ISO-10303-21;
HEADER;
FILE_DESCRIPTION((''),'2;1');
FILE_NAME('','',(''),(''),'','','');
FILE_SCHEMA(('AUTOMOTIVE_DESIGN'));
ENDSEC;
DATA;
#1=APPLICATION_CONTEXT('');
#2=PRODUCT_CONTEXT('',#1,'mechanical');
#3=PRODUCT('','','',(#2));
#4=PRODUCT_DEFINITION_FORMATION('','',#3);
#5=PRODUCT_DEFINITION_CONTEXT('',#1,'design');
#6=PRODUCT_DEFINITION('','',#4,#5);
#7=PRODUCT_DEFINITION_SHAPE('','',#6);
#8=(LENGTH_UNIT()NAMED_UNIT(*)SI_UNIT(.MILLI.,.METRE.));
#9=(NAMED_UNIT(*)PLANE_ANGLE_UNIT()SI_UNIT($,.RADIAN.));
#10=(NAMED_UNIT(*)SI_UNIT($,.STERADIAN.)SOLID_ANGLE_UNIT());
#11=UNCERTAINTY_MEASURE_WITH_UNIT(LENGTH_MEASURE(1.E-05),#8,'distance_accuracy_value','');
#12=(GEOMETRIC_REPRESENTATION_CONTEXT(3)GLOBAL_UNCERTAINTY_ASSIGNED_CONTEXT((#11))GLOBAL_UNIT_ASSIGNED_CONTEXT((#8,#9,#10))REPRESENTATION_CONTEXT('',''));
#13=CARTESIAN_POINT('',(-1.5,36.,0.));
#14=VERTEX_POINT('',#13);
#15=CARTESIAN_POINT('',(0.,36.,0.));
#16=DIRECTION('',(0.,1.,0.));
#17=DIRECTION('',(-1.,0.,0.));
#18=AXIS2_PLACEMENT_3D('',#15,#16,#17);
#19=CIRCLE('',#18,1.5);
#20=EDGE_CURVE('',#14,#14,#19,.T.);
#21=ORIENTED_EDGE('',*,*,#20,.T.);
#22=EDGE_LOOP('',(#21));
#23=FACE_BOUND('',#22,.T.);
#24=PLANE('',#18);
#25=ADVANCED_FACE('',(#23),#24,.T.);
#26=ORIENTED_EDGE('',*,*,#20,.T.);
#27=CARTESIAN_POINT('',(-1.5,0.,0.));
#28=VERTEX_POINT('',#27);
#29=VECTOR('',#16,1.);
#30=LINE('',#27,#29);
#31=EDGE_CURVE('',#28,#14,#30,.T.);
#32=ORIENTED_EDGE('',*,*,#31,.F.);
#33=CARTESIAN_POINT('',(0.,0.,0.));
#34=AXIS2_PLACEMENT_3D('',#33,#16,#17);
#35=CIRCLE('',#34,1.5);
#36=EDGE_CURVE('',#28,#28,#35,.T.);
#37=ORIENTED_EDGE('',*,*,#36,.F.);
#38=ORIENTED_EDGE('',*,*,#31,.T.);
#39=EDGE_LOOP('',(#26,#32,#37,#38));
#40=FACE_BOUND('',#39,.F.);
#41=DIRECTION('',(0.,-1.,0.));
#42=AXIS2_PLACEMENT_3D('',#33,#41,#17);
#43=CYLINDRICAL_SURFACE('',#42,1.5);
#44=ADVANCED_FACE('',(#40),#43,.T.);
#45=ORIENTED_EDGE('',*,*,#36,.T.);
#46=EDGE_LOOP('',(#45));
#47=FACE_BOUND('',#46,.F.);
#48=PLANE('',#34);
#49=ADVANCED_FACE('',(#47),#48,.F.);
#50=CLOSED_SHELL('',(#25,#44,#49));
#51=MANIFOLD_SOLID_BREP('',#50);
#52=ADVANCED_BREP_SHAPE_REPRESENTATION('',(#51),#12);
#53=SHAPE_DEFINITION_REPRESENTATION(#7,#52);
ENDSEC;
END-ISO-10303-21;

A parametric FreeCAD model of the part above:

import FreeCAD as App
import Part
import Sketcher

doc = App.newDocument("Part")
body = doc.addObject("PartDesign::Body", "Body")

# Sketch on XZ plane
sketch1 = body.newObject("Sketcher::SketchObject", "Sketch")
sketch1.AttachmentSupport = (doc.getObject("XZ_Plane"), [""])
sketch1.MapMode = "FlatFace"
sketch1.addGeometry(Part.Circle(App.Vector(0, 0, 0), App.Vector(0, 0, 1), 1.5), False)
sketch1.addConstraint(Sketcher.Constraint("Coincident", 0, 3, -1, 1))
sketch1.addConstraint(Sketcher.Constraint("Diameter", 0, 3.0))
pad1 = body.newObject("PartDesign::Pad", "Pad")
pad1.Profile = sketch1
pad1.Length = 36
pad1.Reversed = True

doc.recompute()
